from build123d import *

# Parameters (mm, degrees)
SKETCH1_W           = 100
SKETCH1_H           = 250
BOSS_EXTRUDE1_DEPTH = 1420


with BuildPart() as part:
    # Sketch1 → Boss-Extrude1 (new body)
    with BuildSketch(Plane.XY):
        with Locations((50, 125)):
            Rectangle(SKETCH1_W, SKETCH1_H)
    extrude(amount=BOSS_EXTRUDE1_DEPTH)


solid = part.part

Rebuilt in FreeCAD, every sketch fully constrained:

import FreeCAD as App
import Part
import Sketcher

V = App.Vector
Q = App.Units.Quantity

doc = App.newDocument("Part")
body = doc.addObject("PartDesign::Body", "Body")

sketch1 = body.newObject("Sketcher::SketchObject", "Sketch")
sketch1.AttachmentSupport = (doc.getObject("XY_Plane"), [""])
sketch1.MapMode = "FlatFace"
sketch1.addGeometry(Part.LineSegment(V(0, 250, 0), V(0, 0, 0)), False)
sketch1.addGeometry(Part.LineSegment(V(0, 0, 0), V(100, 0, 0)), False)
sketch1.addGeometry(Part.LineSegment(V(100, 0, 0), V(100, 250, 0)), False)
sketch1.addGeometry(Part.LineSegment(V(100, 250, 0), V(0, 250, 0)), False)
sketch1.addConstraint(Sketcher.Constraint("Coincident", 0, 2, 1, 1))
sketch1.addConstraint(Sketcher.Constraint("Coincident", 1, 2, 2, 1))
sketch1.addConstraint(Sketcher.Constraint("Coincident", 2, 2, 3, 1))
sketch1.addConstraint(Sketcher.Constraint("Coincident", 3, 2, 0, 1))
sketch1.addConstraint(Sketcher.Constraint("Vertical", 0))
sketch1.addConstraint(Sketcher.Constraint("Horizontal", 1))
sketch1.addConstraint(Sketcher.Constraint("Vertical", 2))
sketch1.addConstraint(Sketcher.Constraint("Horizontal", 3))
sketch1.addConstraint(Sketcher.Constraint("Coincident", 0, 2, -1, 1))
sketch1.addConstraint(Sketcher.Constraint("DistanceX", 1, 1, 1, 2, Q("100 mm")))
sketch1.addConstraint(Sketcher.Constraint("DistanceY", 0, 2, 0, 1, Q("250 mm")))
pad1 = body.newObject("PartDesign::Pad", "Pad")
pad1.Profile = sketch1
pad1.Length = 1420

doc.recompute()
